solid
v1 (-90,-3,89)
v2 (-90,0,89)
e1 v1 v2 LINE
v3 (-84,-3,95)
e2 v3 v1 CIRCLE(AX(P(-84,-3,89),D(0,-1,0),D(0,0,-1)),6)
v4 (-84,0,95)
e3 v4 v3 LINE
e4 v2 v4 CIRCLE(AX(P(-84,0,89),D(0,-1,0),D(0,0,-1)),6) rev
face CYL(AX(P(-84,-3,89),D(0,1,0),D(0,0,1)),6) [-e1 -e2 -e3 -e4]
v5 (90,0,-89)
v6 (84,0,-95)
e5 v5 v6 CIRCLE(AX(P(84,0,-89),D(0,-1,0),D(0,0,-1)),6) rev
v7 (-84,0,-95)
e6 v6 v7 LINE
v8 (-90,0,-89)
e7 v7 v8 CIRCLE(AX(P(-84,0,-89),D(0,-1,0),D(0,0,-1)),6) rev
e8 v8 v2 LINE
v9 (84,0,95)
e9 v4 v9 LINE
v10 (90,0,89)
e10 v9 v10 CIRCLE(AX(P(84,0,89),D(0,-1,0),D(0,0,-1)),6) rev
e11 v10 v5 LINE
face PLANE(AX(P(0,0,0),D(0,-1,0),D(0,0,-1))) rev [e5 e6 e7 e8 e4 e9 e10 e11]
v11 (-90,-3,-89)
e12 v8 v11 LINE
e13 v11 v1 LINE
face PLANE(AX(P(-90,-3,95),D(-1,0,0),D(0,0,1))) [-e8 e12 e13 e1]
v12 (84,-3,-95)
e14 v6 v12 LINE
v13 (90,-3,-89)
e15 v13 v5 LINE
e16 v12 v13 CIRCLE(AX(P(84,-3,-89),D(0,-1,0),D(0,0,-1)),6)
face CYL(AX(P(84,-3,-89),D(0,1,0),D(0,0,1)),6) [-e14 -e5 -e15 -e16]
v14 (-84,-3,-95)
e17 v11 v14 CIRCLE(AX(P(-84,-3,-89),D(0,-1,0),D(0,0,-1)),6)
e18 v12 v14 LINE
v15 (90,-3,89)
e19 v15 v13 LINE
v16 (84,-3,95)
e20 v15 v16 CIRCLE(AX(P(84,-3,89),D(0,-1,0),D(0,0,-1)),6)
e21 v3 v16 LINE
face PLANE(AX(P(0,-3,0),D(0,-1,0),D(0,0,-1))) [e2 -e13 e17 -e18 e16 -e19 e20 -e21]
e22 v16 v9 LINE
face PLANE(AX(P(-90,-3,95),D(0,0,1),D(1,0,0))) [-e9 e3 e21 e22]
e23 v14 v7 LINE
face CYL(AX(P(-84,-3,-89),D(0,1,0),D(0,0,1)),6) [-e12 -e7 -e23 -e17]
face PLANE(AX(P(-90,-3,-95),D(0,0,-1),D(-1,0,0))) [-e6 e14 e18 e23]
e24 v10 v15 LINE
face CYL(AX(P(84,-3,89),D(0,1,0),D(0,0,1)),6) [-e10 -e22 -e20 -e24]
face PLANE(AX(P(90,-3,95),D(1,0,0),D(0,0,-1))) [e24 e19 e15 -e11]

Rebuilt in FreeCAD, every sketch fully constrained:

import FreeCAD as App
import Part
import Sketcher


def edges_at(feature, points):
    """Names of the edges that pass closest to the given points."""
    edges = feature.Shape.Edges
    near = lambda p: min(range(len(edges)), key=lambda i: edges[i].distToShape(Part.Vertex(*p))[0])
    return sorted({f"Edge{near(p) + 1}" for p in points})


def add_polygon(sketch, points):
    """Adds a closed chain of lines whose ends are joined by coincident constraints."""
    first, n = sketch.GeometryCount, len(points)
    for a, b in zip(points, points[1:] + points[:1]):
        sketch.addGeometry(Part.LineSegment(App.Vector(*a, 0), App.Vector(*b, 0)), False)
    for i in range(n):
        sketch.addConstraint(Sketcher.Constraint("Coincident", first + i, 2, first + (i + 1) % n, 1))

doc = App.newDocument("Part")
body = doc.addObject("PartDesign::Body", "Body")

sketch1 = body.newObject("Sketcher::SketchObject", "Sketch")
sketch1.AttachmentSupport = (doc.getObject("XZ_Plane"), [""])
sketch1.MapMode = "FlatFace"
add_polygon(sketch1, [(-90, -95), (-90, 95), (90, 95), (90, -95)])
sketch1.addConstraint([
    Sketcher.Constraint("Vertical", 0),
    Sketcher.Constraint("Horizontal", 1),
    Sketcher.Constraint("Vertical", 2),
    Sketcher.Constraint("Horizontal", 3),
    Sketcher.Constraint("Symmetric", 0, 2, 2, 2, -1, 1),
    Sketcher.Constraint("DistanceX", 1, 1, 1, 2, 180.0),
    Sketcher.Constraint("DistanceY", 0, 1, 0, 2, 190.0),
])
pad1 = body.newObject("PartDesign::Pad", "Pad")
pad1.Profile = sketch1
pad1.Length = 3
doc.recompute()

fillet = body.newObject("PartDesign::Fillet", "Fillet")
fillet.Base = (pad1, edges_at(pad1, [
    (90, -1.5, 95),
    (-90, -1.5, 95),
    (-90, -1.5, -95),
    (90, -1.5, -95),
]))
fillet.Radius = 6

doc.recompute()
